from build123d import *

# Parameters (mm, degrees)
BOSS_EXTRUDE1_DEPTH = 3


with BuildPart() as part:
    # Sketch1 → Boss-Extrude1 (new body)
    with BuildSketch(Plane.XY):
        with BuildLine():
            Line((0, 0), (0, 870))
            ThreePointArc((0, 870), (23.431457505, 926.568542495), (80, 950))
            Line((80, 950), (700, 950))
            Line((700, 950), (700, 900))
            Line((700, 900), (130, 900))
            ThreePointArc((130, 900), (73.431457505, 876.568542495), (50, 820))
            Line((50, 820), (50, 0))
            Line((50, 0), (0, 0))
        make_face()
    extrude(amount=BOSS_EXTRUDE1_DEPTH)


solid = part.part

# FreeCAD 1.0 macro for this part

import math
import FreeCAD as App
import Part
import Sketcher

V = App.Vector
Q = App.Units.Quantity

doc = App.newDocument("Part")
params = doc.addObject("Spreadsheet::Sheet", "Params")
for row, (alias, value) in enumerate([
    ("sketch1_radius", "80 mm"),
    ("sketch1_width", "50 mm"),
    ("sketch1_width2", "570 mm"),
    ("sketch1_height", "870 mm"),
    ("pad1_length", "3 mm"),
], start=1):
    params.set(f"A{row}", alias)
    params.set(f"B{row}", "=" + value)
    params.setAlias(f"B{row}", alias)

body = doc.addObject("PartDesign::Body", "Body")

# Sketch on XY plane
sketch1 = body.newObject("Sketcher::SketchObject", "Sketch")
sketch1.AttachmentSupport = (doc.getObject("XY_Plane"), [""])
sketch1.MapMode = "FlatFace"
sketch1.addGeometry(Part.LineSegment(V(0, 870, 0), V(0, 0, 0)), False)
sketch1.addGeometry(Part.LineSegment(V(0, 0, 0), V(50, 0, 0)), False)
sketch1.addGeometry(Part.LineSegment(V(50, 0, 0), V(50, 820, 0)), False)
sketch1.addGeometry(Part.ArcOfCircle(Part.Circle(V(130, 820, 0), V(0, 0, 1), 80), math.radians(90), math.radians(180)), False)
sketch1.addGeometry(Part.LineSegment(V(130, 900, 0), V(700, 900, 0)), False)
sketch1.addGeometry(Part.LineSegment(V(700, 900, 0), V(700, 950, 0)), False)
sketch1.addGeometry(Part.LineSegment(V(700, 950, 0), V(80, 950, 0)), False)
sketch1.addGeometry(Part.ArcOfCircle(Part.Circle(V(80, 870, 0), V(0, 0, 1), 80), math.radians(90), math.radians(180)), False)
sketch1.addConstraint(Sketcher.Constraint("Coincident", 0, 2, 1, 1))
sketch1.addConstraint(Sketcher.Constraint("Coincident", 1, 2, 2, 1))
sketch1.addConstraint(Sketcher.Constraint("Tangent", 2, 2, 3, 2))
sketch1.addConstraint(Sketcher.Constraint("Tangent", 3, 1, 4, 1))
sketch1.addConstraint(Sketcher.Constraint("Coincident", 4, 2, 5, 1))
sketch1.addConstraint(Sketcher.Constraint("Coincident", 5, 2, 6, 1))
sketch1.addConstraint(Sketcher.Constraint("Tangent", 6, 2, 7, 1))
sketch1.addConstraint(Sketcher.Constraint("Tangent", 7, 2, 0, 1))
sketch1.addConstraint(Sketcher.Constraint("Vertical", 0))
sketch1.addConstraint(Sketcher.Constraint("Horizontal", 1))
sketch1.addConstraint(Sketcher.Constraint("Vertical", 2))
sketch1.addConstraint(Sketcher.Constraint("Horizontal", 4))
sketch1.addConstraint(Sketcher.Constraint("Vertical", 5))
sketch1.addConstraint(Sketcher.Constraint("Horizontal", 6))
sketch1.addConstraint(Sketcher.Constraint("Coincident", 0, 2, -1, 1))
sketch1.addConstraint(Sketcher.Constraint("Equal", 3, 7))
sketch1.addConstraint(Sketcher.Constraint("Equal", 1, 5))
sketch1.addConstraint(Sketcher.Constraint("Radius", 3, Q("80 mm")))
sketch1.addConstraint(Sketcher.Constraint("DistanceX", 1, 1, 1, 2, Q("50 mm")))
sketch1.addConstraint(Sketcher.Constraint("DistanceX", 4, 1, 4, 2, Q("570 mm")))
sketch1.addConstraint(Sketcher.Constraint("DistanceY", 0, 2, 0, 1, Q("870 mm")))
sketch1.setExpression("Constraints[17]", "Params.sketch1_radius")
sketch1.setExpression("Constraints[18]", "Params.sketch1_width")
sketch1.setExpression("Constraints[19]", "Params.sketch1_width2")
sketch1.setExpression("Constraints[20]", "Params.sketch1_height")
pad1 = body.newObject("PartDesign::Pad", "Pad")
pad1.Profile = sketch1
pad1.setExpression("Length", "Params.pad1_length")

doc.recompute()
